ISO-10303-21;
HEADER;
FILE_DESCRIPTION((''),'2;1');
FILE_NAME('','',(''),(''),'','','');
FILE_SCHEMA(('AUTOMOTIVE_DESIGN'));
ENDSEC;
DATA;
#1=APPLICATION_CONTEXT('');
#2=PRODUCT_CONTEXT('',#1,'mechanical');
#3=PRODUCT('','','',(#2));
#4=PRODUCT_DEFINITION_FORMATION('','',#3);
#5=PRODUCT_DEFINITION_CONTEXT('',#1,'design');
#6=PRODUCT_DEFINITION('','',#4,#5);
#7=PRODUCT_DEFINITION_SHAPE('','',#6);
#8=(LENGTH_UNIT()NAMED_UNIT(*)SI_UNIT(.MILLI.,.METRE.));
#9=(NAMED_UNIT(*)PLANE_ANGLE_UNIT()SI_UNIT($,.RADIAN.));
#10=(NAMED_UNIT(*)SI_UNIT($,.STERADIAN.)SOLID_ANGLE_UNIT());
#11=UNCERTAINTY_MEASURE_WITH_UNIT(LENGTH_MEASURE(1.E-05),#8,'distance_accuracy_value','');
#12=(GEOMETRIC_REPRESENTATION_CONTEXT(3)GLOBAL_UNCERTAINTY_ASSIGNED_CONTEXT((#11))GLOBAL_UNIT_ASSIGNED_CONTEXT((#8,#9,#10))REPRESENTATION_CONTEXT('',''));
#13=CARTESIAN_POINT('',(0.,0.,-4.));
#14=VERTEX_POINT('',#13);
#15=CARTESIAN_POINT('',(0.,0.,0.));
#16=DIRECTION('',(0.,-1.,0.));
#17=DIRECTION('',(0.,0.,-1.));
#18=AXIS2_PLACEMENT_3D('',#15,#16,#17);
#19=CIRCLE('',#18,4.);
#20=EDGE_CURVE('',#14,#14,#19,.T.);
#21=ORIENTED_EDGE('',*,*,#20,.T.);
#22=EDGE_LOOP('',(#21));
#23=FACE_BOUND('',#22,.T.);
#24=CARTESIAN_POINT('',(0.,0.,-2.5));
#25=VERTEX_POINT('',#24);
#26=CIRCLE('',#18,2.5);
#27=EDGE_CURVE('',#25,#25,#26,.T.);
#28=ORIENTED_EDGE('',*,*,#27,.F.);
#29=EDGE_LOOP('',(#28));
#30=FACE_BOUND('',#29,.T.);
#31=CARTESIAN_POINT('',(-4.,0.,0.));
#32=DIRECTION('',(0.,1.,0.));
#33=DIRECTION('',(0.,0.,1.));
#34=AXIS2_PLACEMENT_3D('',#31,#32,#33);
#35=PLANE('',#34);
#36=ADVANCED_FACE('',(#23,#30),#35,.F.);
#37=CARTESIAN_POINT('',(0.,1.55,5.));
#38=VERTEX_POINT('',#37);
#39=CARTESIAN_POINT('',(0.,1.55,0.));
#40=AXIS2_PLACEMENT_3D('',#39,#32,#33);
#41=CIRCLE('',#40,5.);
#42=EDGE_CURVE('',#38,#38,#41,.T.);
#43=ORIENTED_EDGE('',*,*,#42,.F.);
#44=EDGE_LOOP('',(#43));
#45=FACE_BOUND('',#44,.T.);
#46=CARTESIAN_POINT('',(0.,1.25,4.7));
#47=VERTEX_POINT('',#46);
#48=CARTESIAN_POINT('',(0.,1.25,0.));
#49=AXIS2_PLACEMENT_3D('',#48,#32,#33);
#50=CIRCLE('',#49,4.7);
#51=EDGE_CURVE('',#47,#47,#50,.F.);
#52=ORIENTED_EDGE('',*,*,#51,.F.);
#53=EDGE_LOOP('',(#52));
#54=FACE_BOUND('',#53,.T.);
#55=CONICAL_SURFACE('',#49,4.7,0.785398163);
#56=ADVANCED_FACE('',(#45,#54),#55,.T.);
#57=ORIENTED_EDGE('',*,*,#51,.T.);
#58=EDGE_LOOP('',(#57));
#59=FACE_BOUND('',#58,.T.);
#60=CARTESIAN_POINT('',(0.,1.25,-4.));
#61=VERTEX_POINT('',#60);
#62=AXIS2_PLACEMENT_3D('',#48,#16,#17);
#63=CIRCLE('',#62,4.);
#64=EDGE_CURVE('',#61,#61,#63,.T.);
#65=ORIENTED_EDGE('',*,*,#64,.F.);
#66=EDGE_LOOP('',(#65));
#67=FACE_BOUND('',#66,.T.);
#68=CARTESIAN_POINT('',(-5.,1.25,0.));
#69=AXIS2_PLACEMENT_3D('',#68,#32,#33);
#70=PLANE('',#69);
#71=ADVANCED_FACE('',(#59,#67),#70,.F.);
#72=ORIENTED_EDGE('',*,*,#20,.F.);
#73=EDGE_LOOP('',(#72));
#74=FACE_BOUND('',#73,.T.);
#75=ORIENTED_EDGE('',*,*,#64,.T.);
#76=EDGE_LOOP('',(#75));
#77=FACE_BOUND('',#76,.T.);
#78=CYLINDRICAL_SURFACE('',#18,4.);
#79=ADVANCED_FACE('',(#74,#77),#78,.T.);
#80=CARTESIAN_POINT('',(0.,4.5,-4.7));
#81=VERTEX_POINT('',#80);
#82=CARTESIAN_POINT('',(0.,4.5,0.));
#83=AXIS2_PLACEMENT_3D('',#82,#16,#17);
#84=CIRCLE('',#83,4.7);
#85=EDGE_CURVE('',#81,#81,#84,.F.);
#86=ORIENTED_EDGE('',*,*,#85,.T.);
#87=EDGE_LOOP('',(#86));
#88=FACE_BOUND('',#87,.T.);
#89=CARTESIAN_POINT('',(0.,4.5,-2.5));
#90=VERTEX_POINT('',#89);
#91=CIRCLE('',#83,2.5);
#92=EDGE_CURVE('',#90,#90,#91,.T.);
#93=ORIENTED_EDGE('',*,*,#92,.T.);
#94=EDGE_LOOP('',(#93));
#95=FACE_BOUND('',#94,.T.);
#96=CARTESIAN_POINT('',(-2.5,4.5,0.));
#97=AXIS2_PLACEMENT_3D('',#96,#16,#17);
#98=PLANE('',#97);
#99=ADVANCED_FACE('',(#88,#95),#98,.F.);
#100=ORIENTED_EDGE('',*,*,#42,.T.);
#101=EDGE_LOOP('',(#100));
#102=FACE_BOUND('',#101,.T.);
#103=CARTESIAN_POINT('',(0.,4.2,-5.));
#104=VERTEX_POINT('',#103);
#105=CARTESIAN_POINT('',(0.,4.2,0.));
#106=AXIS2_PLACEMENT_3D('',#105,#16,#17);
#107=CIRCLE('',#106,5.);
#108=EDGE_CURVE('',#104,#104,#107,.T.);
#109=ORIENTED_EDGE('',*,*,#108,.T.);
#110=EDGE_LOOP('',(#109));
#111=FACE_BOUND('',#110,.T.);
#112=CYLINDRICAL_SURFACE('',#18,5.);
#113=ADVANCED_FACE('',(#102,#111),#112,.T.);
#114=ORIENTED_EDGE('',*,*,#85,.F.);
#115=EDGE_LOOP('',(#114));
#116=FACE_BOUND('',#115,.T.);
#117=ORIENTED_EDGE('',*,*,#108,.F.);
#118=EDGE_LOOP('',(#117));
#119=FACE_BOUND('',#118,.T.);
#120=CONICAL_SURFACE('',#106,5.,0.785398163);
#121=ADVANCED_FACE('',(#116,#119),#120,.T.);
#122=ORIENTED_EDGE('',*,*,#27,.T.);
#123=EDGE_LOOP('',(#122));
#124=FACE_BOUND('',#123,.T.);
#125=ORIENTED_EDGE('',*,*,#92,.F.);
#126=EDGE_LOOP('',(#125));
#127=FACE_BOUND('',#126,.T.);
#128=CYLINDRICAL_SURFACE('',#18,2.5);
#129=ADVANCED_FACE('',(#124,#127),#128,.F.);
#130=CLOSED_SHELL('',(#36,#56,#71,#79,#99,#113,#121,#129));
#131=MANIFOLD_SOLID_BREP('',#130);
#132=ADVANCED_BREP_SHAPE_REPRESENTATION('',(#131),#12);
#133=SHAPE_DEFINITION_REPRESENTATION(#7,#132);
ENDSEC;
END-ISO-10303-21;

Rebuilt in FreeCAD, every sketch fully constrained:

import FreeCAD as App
import Part
import Sketcher
Q = App.Units.Quantity


def edges_at(feature, points):
    """Names of the edges that pass closest to the given points."""
    edges = feature.Shape.Edges
    near = lambda p: min(range(len(edges)), key=lambda i: edges[i].distToShape(Part.Vertex(*p))[0])
    return sorted({f"Edge{near(p) + 1}" for p in points})

doc = App.newDocument("Part")
body = doc.addObject("PartDesign::Body", "Body")

# Sketch on XY plane
sketch1 = body.newObject("Sketcher::SketchObject", "Sketch")
sketch1.AttachmentSupport = (doc.getObject("XY_Plane"), [""])
sketch1.MapMode = "FlatFace"
sketch1.addGeometry([
    Part.LineSegment(App.Vector(-2.5, 0, 0), App.Vector(-2.5, 4.5, 0)),  # 0
    Part.LineSegment(App.Vector(-2.5, 4.5, 0), App.Vector(-5, 4.5, 0)),  # 1
    Part.LineSegment(App.Vector(-5, 4.5, 0), App.Vector(-5, 1.25, 0)),  # 2
    Part.LineSegment(App.Vector(-5, 1.25, 0), App.Vector(-4, 1.25, 0)),  # 3
    Part.LineSegment(App.Vector(-4, 1.25, 0), App.Vector(-4, 0, 0)),  # 4
    Part.LineSegment(App.Vector(-4, 0, 0), App.Vector(-2.5, 0, 0)),  # 5
], False)
sketch1.addConstraint([
    Sketcher.Constraint("Coincident", 0, 2, 1, 1),
    Sketcher.Constraint("Coincident", 1, 2, 2, 1),
    Sketcher.Constraint("Coincident", 2, 2, 3, 1),
    Sketcher.Constraint("Coincident", 3, 2, 4, 1),
    Sketcher.Constraint("Coincident", 4, 2, 5, 1),
    Sketcher.Constraint("Coincident", 5, 2, 0, 1),
    Sketcher.Constraint("Vertical", 0),
    Sketcher.Constraint("Horizontal", 1),
    Sketcher.Constraint("Vertical", 2),
    Sketcher.Constraint("Horizontal", 3),
    Sketcher.Constraint("Vertical", 4),
    Sketcher.Constraint("Horizontal", 5),
    Sketcher.Constraint("PointOnObject", 4, 2, -1),
    Sketcher.Constraint("DistanceX", 3, 1, 3, 2, Q("1 mm")),
    Sketcher.Constraint("DistanceX", 1, 2, 1, 1, Q("2.5 mm")),
    Sketcher.Constraint("DistanceY", 0, 1, 0, 2, Q("4.5 mm")),
    Sketcher.Constraint("DistanceX", 1, 2, -1, 1, Q("5 mm")),
    Sketcher.Constraint("DistanceY", 2, 2, 2, 1, Q("3.25 mm")),
])
revolution = body.newObject("PartDesign::Revolution", "Revolution")
revolution.Profile = sketch1
revolution.ReferenceAxis = (sketch1, ["V_Axis"])
revolution.Angle = 360
doc.recompute()

chamfer = body.newObject("PartDesign::Chamfer", "Chamfer")
chamfer.Base = (revolution, edges_at(revolution, [(0, 1.25, 5), (0, 4.5, 5)]))
chamfer.Size = 0.3

doc.recompute()
